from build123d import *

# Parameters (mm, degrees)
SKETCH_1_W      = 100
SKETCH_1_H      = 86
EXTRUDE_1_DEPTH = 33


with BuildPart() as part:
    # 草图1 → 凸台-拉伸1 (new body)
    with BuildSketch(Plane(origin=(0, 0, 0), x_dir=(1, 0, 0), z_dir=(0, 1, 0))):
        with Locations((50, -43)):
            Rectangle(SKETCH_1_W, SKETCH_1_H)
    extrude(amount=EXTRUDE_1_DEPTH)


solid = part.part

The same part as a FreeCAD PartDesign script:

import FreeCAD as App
import Part
import Sketcher
from FreeCAD import Vector
Q = App.Units.Quantity


def add_polygon(sketch, points):
    """Adds a closed chain of lines whose ends are joined by coincident constraints."""
    first, n = sketch.GeometryCount, len(points)
    for a, b in zip(points, points[1:] + points[:1]):
        sketch.addGeometry(Part.LineSegment(App.Vector(*a, 0), App.Vector(*b, 0)), False)
    for i in range(n):
        sketch.addConstraint(Sketcher.Constraint("Coincident", first + i, 2, first + (i + 1) % n, 1))

doc = App.newDocument("Part")
body = doc.addObject("PartDesign::Body", "Body")

# Sketch on XZ plane
sketch1 = body.newObject("Sketcher::SketchObject", "Sketch")
sketch1.AttachmentSupport = (doc.getObject("XZ_Plane"), [""])
sketch1.MapMode = "FlatFace"
add_polygon(sketch1, [(0, 0), (0, 86), (100, 86), (100, 0)])  # lines 0-3
sketch1.addConstraint([
    Sketcher.Constraint("Vertical", 0),
    Sketcher.Constraint("Horizontal", 1),
    Sketcher.Constraint("Vertical", 2),
    Sketcher.Constraint("Horizontal", 3),
    Sketcher.Constraint("Coincident", 3, 2, -1, 1),
    Sketcher.Constraint("DistanceX", 1, 1, 1, 2, Q("100 mm")),
    Sketcher.Constraint("DistanceY", 0, 1, 0, 2, Q("86 mm")),
])
pad1 = body.newObject("PartDesign::Pad", "Pad")
pad1.Profile = sketch1
pad1.Length = 33
pad1.Reversed = True

doc.recompute()
